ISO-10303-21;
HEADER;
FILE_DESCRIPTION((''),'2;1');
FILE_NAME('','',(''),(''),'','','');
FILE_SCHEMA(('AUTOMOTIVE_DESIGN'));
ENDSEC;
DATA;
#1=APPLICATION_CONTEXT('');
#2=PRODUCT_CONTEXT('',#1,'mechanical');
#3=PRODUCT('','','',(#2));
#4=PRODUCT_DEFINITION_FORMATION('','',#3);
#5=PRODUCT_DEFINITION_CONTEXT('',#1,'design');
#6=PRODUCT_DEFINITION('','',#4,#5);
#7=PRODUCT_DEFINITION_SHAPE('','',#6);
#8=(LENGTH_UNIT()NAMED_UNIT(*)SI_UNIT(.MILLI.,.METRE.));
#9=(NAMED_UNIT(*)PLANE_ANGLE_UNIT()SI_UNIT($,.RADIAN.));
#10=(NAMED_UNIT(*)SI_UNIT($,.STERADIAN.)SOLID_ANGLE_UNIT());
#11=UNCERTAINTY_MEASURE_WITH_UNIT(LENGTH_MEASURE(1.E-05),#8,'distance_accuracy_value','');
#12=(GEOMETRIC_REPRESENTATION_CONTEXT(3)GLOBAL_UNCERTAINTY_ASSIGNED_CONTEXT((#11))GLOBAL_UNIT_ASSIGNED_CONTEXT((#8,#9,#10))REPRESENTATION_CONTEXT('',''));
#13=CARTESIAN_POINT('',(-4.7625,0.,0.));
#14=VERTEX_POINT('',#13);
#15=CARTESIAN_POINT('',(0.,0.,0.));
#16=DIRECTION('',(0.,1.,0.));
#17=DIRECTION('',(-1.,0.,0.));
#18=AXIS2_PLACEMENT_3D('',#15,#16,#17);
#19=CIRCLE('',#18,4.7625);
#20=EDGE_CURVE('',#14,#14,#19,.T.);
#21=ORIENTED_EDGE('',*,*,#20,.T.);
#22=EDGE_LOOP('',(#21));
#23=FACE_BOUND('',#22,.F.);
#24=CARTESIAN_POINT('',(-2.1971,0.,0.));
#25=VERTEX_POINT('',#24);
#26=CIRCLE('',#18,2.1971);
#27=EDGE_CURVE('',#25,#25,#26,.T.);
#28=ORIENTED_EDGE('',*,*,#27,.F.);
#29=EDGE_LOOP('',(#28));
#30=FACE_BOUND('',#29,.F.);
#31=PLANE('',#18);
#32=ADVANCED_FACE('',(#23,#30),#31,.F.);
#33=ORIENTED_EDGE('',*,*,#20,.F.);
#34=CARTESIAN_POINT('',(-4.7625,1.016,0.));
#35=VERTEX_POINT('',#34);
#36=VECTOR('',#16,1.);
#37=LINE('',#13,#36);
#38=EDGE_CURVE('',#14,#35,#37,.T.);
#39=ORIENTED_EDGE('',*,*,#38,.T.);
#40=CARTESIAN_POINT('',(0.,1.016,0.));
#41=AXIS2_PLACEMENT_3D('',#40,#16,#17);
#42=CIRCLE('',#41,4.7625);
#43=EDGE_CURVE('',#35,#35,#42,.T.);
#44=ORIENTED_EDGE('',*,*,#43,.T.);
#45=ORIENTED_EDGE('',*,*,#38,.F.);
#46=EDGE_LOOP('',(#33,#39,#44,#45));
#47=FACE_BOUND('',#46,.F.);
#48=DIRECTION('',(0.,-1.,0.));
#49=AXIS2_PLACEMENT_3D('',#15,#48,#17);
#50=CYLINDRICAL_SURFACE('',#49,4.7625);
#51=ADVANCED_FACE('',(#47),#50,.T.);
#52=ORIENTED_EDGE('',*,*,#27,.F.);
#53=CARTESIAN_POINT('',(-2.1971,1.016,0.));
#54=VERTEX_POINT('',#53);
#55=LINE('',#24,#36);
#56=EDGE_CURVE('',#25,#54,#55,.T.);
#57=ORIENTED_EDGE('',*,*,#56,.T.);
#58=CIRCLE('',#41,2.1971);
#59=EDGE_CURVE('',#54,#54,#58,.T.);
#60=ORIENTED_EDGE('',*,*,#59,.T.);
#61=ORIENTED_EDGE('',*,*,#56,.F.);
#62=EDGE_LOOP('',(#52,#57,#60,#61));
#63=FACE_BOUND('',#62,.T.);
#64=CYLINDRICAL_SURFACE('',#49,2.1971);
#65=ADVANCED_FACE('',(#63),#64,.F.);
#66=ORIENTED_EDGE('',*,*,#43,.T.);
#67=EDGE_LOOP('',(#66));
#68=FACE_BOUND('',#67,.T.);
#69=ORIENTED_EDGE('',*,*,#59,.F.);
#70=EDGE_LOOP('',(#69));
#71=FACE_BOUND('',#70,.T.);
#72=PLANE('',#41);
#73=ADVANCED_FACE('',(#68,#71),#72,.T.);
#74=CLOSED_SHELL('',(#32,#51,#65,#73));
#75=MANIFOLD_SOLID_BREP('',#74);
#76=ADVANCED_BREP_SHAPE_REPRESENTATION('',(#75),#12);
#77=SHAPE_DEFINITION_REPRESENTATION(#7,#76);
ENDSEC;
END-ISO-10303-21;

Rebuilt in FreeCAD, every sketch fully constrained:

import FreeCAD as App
import Part
import Sketcher
from FreeCAD import Vector
Q = App.Units.Quantity

doc = App.newDocument("Part")
params = doc.addObject("Spreadsheet::Sheet", "Params")
for row, (alias, value) in enumerate([
    ("sketch1_diameter", "0.375 in"),
    ("sketch1_diameter2", "0.173 in"),
    ("pad1_length", "0.04 in"),
], start=1):
    params.set(f"A{row}", alias)
    params.set(f"B{row}", "=" + value)
    params.setAlias(f"B{row}", alias)

body = doc.addObject("PartDesign::Body", "Body")

# Sketch on XZ plane
sketch1 = body.newObject("Sketcher::SketchObject", "Sketch")
sketch1.AttachmentSupport = (doc.getObject("XZ_Plane"), [""])
sketch1.MapMode = "FlatFace"
sketch1.addGeometry(Part.Circle(Vector(0, 0, 0), Vector(0, 0, 1), 4.8), False)
sketch1.addGeometry(Part.Circle(Vector(0, 0, 0), Vector(0, 0, 1), 2.2), False)
sketch1.addConstraint(Sketcher.Constraint("Coincident", 0, 3, -1, 1))
sketch1.addConstraint(Sketcher.Constraint("Coincident", 1, 3, -1, 1))
sketch1.addConstraint(Sketcher.Constraint("Diameter", 0, Q("0.375 in")))
sketch1.addConstraint(Sketcher.Constraint("Diameter", 1, Q("0.173 in")))
sketch1.setExpression("Constraints[2]", "Params.sketch1_diameter")
sketch1.setExpression("Constraints[3]", "Params.sketch1_diameter2")
pad1 = body.newObject("PartDesign::Pad", "Pad")
pad1.Profile = sketch1
pad1.setExpression("Length", "Params.pad1_length")
pad1.Reversed = True

doc.recompute()
